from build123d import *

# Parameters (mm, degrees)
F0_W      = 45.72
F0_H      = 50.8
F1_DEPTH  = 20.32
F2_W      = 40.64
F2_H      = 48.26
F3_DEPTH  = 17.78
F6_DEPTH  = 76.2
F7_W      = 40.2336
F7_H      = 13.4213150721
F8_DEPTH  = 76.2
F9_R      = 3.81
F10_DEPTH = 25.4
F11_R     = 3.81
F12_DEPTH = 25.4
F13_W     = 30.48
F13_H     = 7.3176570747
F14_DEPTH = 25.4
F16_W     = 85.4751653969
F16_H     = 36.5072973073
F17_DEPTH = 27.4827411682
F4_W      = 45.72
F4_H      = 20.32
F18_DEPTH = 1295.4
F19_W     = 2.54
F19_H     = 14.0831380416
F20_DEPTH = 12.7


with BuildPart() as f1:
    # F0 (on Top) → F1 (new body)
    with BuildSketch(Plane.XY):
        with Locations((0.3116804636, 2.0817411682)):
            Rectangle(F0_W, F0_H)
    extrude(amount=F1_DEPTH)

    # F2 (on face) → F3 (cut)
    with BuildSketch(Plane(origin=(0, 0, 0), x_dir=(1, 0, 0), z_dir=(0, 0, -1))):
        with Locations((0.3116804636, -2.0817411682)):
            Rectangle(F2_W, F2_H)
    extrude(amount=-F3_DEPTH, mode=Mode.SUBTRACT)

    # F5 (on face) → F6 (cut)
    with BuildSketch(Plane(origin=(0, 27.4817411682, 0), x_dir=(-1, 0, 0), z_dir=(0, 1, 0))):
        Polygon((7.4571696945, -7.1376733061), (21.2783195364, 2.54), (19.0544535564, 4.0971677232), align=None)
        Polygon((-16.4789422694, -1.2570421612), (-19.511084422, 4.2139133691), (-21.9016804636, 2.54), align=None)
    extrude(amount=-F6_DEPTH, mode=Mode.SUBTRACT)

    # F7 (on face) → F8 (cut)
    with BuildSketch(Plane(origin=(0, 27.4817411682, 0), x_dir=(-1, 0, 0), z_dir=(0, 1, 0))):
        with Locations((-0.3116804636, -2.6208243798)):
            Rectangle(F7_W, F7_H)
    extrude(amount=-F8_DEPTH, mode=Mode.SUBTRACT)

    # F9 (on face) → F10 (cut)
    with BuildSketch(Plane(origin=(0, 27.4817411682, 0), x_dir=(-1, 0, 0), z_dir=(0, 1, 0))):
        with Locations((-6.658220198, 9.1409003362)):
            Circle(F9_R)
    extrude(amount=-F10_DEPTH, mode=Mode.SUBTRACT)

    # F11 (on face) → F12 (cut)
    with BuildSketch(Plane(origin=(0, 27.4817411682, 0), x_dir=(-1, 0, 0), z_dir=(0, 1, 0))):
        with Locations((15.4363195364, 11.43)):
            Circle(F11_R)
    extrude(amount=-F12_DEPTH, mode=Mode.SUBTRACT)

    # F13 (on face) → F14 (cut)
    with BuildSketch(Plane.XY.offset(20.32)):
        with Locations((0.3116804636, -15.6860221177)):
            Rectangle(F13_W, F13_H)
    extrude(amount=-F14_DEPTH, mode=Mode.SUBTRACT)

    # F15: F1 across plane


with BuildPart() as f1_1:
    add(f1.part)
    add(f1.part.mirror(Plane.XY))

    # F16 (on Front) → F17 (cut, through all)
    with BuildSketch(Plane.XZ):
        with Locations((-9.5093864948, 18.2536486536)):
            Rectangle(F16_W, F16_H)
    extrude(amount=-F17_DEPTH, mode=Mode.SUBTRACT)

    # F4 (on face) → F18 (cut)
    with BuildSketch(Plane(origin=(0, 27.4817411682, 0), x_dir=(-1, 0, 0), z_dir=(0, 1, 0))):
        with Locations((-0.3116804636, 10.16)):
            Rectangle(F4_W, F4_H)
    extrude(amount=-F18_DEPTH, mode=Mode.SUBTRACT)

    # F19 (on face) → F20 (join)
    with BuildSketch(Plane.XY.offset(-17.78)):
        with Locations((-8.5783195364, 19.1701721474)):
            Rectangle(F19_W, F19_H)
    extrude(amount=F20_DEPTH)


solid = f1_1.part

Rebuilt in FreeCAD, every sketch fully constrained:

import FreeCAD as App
import Part
import Sketcher

V = App.Vector
Q = App.Units.Quantity

doc = App.newDocument("Part")
body = doc.addObject("PartDesign::Body", "Body")

sketch1 = body.newObject("Sketcher::SketchObject", "Sketch")
sketch1.AttachmentSupport = (doc.getObject("XY_Plane"), [""])
sketch1.MapMode = "FlatFace"
sketch1.addGeometry([
    Part.LineSegment(V(-22.54832, 27.481741, 0), V(-22.54832, -23.318259, 0)),
    Part.LineSegment(V(-22.54832, -23.318259, 0), V(23.17168, -23.318259, 0)),
    Part.LineSegment(V(23.17168, -23.318259, 0), V(23.17168, 27.481741, 0)),
    Part.LineSegment(V(23.17168, 27.481741, 0), V(-22.54832, 27.481741, 0)),
], False)
sketch1.addConstraint([
    Sketcher.Constraint("Coincident", 0, 2, 1, 1),
    Sketcher.Constraint("Coincident", 1, 2, 2, 1),
    Sketcher.Constraint("Coincident", 2, 2, 3, 1),
    Sketcher.Constraint("Coincident", 3, 2, 0, 1),
    Sketcher.Constraint("Vertical", 0),
    Sketcher.Constraint("Horizontal", 1),
    Sketcher.Constraint("Vertical", 2),
    Sketcher.Constraint("Horizontal", 3),
    Sketcher.Constraint("DistanceY", 0, 2, 0, 1, Q("2 in")),
    Sketcher.Constraint("DistanceX", 1, 1, 1, 2, Q("1.8 in")),
    Sketcher.Constraint("DistanceX", 0, 2, -1, 1, Q("22.54832 mm")),
    Sketcher.Constraint("DistanceY", 0, 2, -1, 1, Q("23.318259 mm")),
])
pad1 = body.newObject("PartDesign::Pad", "Pad")
pad1.Profile = sketch1
pad1.Length = Q("0.8 in")

sketch2 = body.newObject("Sketcher::SketchObject", "Sketch001")
sketch2.AttachmentSupport = (doc.getObject("XY_Plane"), [""])
sketch2.MapMode = "FlatFace"
sketch2.addGeometry([
    Part.LineSegment(V(-20.00832, -22.048259, 0), V(-20.00832, 26.211741, 0)),
    Part.LineSegment(V(-20.00832, 26.211741, 0), V(20.63168, 26.211741, 0)),
    Part.LineSegment(V(20.63168, 26.211741, 0), V(20.63168, -22.048259, 0)),
    Part.LineSegment(V(20.63168, -22.048259, 0), V(-20.00832, -22.048259, 0)),
], False)
sketch2.addConstraint([
    Sketcher.Constraint("Coincident", 0, 2, 1, 1),
    Sketcher.Constraint("Coincident", 1, 2, 2, 1),
    Sketcher.Constraint("Coincident", 2, 2, 3, 1),
    Sketcher.Constraint("Coincident", 3, 2, 0, 1),
    Sketcher.Constraint("Vertical", 0),
    Sketcher.Constraint("Horizontal", 1),
    Sketcher.Constraint("Vertical", 2),
    Sketcher.Constraint("Horizontal", 3),
    Sketcher.Constraint("DistanceX", 1, 1, 1, 2, Q("1.6 in")),
    Sketcher.Constraint("DistanceY", 0, 1, 0, 2, Q("1.9 in")),
    Sketcher.Constraint("DistanceX", 0, 2, -1, 1, Q("20.00832 mm")),
    Sketcher.Constraint("DistanceY", -1, 1, 0, 2, Q("26.211741 mm")),
])
pocket1 = body.newObject("PartDesign::Pocket", "Pocket")
pocket1.Profile = sketch2
pocket1.Length = Q("0.7 in")
pocket1.Reversed = True

sketch3 = body.newObject("Sketcher::SketchObject", "Sketch002")
sketch3.AttachmentSupport = (doc.getObject("XZ_Plane"), [""])
sketch3.MapMode = "FlatFace"
sketch3.AttachmentOffset = App.Placement(V(0, 0, -27.481741), App.Rotation())
sketch3.addGeometry([
    Part.LineSegment(V(-7.45717, -7.137673, 0), V(-21.27832, 2.54, 0)),
    Part.LineSegment(V(-21.27832, 2.54, 0), V(-19.054454, 4.097168, 0)),
    Part.LineSegment(V(-19.054454, 4.097168, 0), V(-7.45717, -7.137673, 0)),
    Part.LineSegment(V(16.478942, -1.257042, 0), V(19.511084, 4.213913, 0)),
    Part.LineSegment(V(19.511084, 4.213913, 0), V(21.90168, 2.54, 0)),
    Part.LineSegment(V(21.90168, 2.54, 0), V(16.478942, -1.257042, 0)),
], False)
sketch3.addConstraint([
    Sketcher.Constraint("Coincident", 0, 2, 1, 1),
    Sketcher.Constraint("Coincident", 1, 2, 2, 1),
    Sketcher.Constraint("Coincident", 2, 2, 0, 1),
    Sketcher.Constraint("Coincident", 3, 2, 4, 1),
    Sketcher.Constraint("Coincident", 4, 2, 5, 1),
    Sketcher.Constraint("Coincident", 5, 2, 3, 1),
    Sketcher.Constraint("Parallel", 0, 4),
    Sketcher.Constraint("Parallel", 1, 5),
    Sketcher.Constraint("Horizontal", 0, 2, 4, 2),
    Sketcher.Constraint("Angle", 0, Q("145 deg")),
    Sketcher.Constraint("Angle", 1, Q("35 deg")),
    Sketcher.Constraint("DistanceY", -1, 1, 0, 2, Q("0.1 in")),
    Sketcher.Constraint("DistanceX", 0, 2, 4, 2, Q("1.7 in")),
    Sketcher.Constraint("Distance", 2, Q("0.6357002 in")),
    Sketcher.Constraint("Distance", 0, Q("16.872509 mm")),
    Sketcher.Constraint("Distance", 4, Q("2.918379 mm")),
    Sketcher.Constraint("Distance", 5, Q("6.619941 mm")),
    Sketcher.Constraint("DistanceX", 0, 2, -1, 1, Q("21.27832 mm")),
])
pocket2 = body.newObject("PartDesign::Pocket", "Pocket001")
pocket2.Profile = sketch3
pocket2.Length = Q("3 in")
pocket2.Reversed = True

sketch4 = body.newObject("Sketcher::SketchObject", "Sketch003")
sketch4.AttachmentSupport = (doc.getObject("XZ_Plane"), [""])
sketch4.MapMode = "FlatFace"
sketch4.AttachmentOffset = App.Placement(V(0, 0, -27.481741), App.Rotation())
sketch4.addGeometry([
    Part.LineSegment(V(20.42848, 4.089833, 0), V(20.42848, -9.331482, 0)),
    Part.LineSegment(V(20.42848, -9.331482, 0), V(-19.80512, -9.331482, 0)),
    Part.LineSegment(V(-19.80512, -9.331482, 0), V(-19.80512, 4.089833, 0)),
    Part.LineSegment(V(-19.80512, 4.089833, 0), V(20.42848, 4.089833, 0)),
], False)
sketch4.addConstraint([
    Sketcher.Constraint("Coincident", 0, 2, 1, 1),
    Sketcher.Constraint("Coincident", 1, 2, 2, 1),
    Sketcher.Constraint("Coincident", 2, 2, 3, 1),
    Sketcher.Constraint("Coincident", 3, 2, 0, 1),
    Sketcher.Constraint("Vertical", 0),
    Sketcher.Constraint("Horizontal", 1),
    Sketcher.Constraint("Vertical", 2),
    Sketcher.Constraint("Horizontal", 3),
    Sketcher.Constraint("DistanceX", 1, 2, 1, 1, Q("1.584 in")),
    Sketcher.Constraint("DistanceY", 0, 2, 0, 1, Q("13.421315 mm")),
    Sketcher.Constraint("DistanceX", -1, 1, 0, 2, Q("20.42848 mm")),
    Sketcher.Constraint("DistanceY", 0, 2, -1, 1, Q("9.331482 mm")),
])
pocket3 = body.newObject("PartDesign::Pocket", "Pocket002")
pocket3.Profile = sketch4
pocket3.Length = Q("3 in")
pocket3.Reversed = True

sketch5 = body.newObject("Sketcher::SketchObject", "Sketch004")
sketch5.AttachmentSupport = (doc.getObject("XZ_Plane"), [""])
sketch5.MapMode = "FlatFace"
sketch5.AttachmentOffset = App.Placement(V(0, 0, -27.481741), App.Rotation())
sketch5.addGeometry(Part.Circle(V(6.65822, 9.1409, 0), V(0, 0, 1), 3.81), False)
sketch5.addConstraint([
    Sketcher.Constraint("Diameter", 0, Q("0.3 in")),
    Sketcher.Constraint("DistanceY", -1, 1, 0, 3, Q("9.1409 mm")),
    Sketcher.Constraint("DistanceX", -1, 1, 0, 3, Q("6.65822 mm")),
])
pocket4 = body.newObject("PartDesign::Pocket", "Pocket003")
pocket4.Profile = sketch5
pocket4.Length = Q("1 in")
pocket4.Reversed = True

sketch6 = body.newObject("Sketcher::SketchObject", "Sketch005")
sketch6.AttachmentSupport = (doc.getObject("XZ_Plane"), [""])
sketch6.MapMode = "FlatFace"
sketch6.AttachmentOffset = App.Placement(V(0, 0, -27.481741), App.Rotation())
sketch6.addGeometry(Part.Circle(V(-15.43632, 11.43, 0), V(0, 0, 1), 3.81), False)
sketch6.addConstraint([
    Sketcher.Constraint("Diameter", 0, Q("0.3 in")),
    Sketcher.Constraint("DistanceY", -1, 1, 0, 3, Q("0.45 in")),
    Sketcher.Constraint("DistanceX", 0, 3, -1, 1, Q("15.43632 mm")),
])
pocket5 = body.newObject("PartDesign::Pocket", "Pocket004")
pocket5.Profile = sketch6
pocket5.Length = Q("1 in")
pocket5.Reversed = True

sketch7 = body.newObject("Sketcher::SketchObject", "Sketch006")
sketch7.AttachmentSupport = (doc.getObject("XY_Plane"), [""])
sketch7.MapMode = "FlatFace"
sketch7.AttachmentOffset = App.Placement(V(0, 0, 0.8 * 25.4), App.Rotation())
sketch7.addGeometry([
    Part.LineSegment(V(-14.92832, -12.027194, 0), V(-14.92832, -19.344851, 0)),
    Part.LineSegment(V(-14.92832, -19.344851, 0), V(15.55168, -19.344851, 0)),
    Part.LineSegment(V(15.55168, -19.344851, 0), V(15.55168, -12.027194, 0)),
    Part.LineSegment(V(15.55168, -12.027194, 0), V(-14.92832, -12.027194, 0)),
], False)
sketch7.addConstraint([
    Sketcher.Constraint("Coincident", 0, 2, 1, 1),
    Sketcher.Constraint("Coincident", 1, 2, 2, 1),
    Sketcher.Constraint("Coincident", 2, 2, 3, 1),
    Sketcher.Constraint("Coincident", 3, 2, 0, 1),
    Sketcher.Constraint("Vertical", 0),
    Sketcher.Constraint("Horizontal", 1),
    Sketcher.Constraint("Vertical", 2),
    Sketcher.Constraint("Horizontal", 3),
    Sketcher.Constraint("DistanceX", 1, 1, 1, 2, Q("1.2 in")),
    Sketcher.Constraint("DistanceY", 0, 2, 0, 1, Q("7.317657 mm")),
    Sketcher.Constraint("DistanceX", 0, 2, -1, 1, Q("14.92832 mm")),
    Sketcher.Constraint("DistanceY", 0, 2, -1, 1, Q("19.344851 mm")),
])
pocket6 = body.newObject("PartDesign::Pocket", "Pocket005")
pocket6.Profile = sketch7
pocket6.Length = Q("1 in")
body2 = doc.addObject("PartDesign::Body", "Body001")
doc.recompute()

body2.BaseFeature = body
doc.recompute()

mirroring = doc.addObject("Part::Mirroring", "Mirroring")
mirroring.Source = body
mirroring.Base = V(0, 0, 0)
mirroring.Normal = V(0, 0, 1)
body3 = doc.addObject("PartDesign::Body", "Body002")
body3.BaseFeature = mirroring
boolean = body2.newObject("PartDesign::Boolean", "Boolean")
boolean.Type = "Fuse"
boolean.addObjects([body3])
doc.recompute()

sketch8 = body2.newObject("Sketcher::SketchObject", "Sketch007")
sketch8.AttachmentSupport = (doc.getObject("XZ_Plane001"), [""])
sketch8.MapMode = "FlatFace"
sketch8.addGeometry([
    Part.LineSegment(V(-52.246969, 36.507297, 0), V(-52.246969, 0, 0)),
    Part.LineSegment(V(-52.246969, 0, 0), V(33.228196, 0, 0)),
    Part.LineSegment(V(33.228196, 0, 0), V(33.228196, 36.507297, 0)),
    Part.LineSegment(V(33.228196, 36.507297, 0), V(-52.246969, 36.507297, 0)),
], False)
sketch8.addConstraint([
    Sketcher.Constraint("Coincident", 0, 2, 1, 1),
    Sketcher.Constraint("Coincident", 1, 2, 2, 1),
    Sketcher.Constraint("Coincident", 2, 2, 3, 1),
    Sketcher.Constraint("Coincident", 3, 2, 0, 1),
    Sketcher.Constraint("Vertical", 0),
    Sketcher.Constraint("Horizontal", 1),
    Sketcher.Constraint("Vertical", 2),
    Sketcher.Constraint("Horizontal", 3),
    Sketcher.Constraint("PointOnObject", 0, 2, -1),
    Sketcher.Constraint("DistanceX", 1, 1, 1, 2, Q("85.475165 mm")),
    Sketcher.Constraint("DistanceY", 0, 2, 0, 1, Q("36.507297 mm")),
    Sketcher.Constraint("DistanceX", 0, 2, -1, 1, Q("52.246969 mm")),
])
pocket7 = body2.newObject("PartDesign::Pocket", "Pocket006")
pocket7.Profile = sketch8
pocket7.Type = "ThroughAll"

sketch9 = body2.newObject("Sketcher::SketchObject", "Sketch008")
sketch9.AttachmentSupport = (doc.getObject("XZ_Plane001"), [""])
sketch9.MapMode = "FlatFace"
sketch9.AttachmentOffset = App.Placement(V(0, 0, -27.481741), App.Rotation())
sketch9.addGeometry([
    Part.LineSegment(V(23.17168, 20.32, 0), V(23.17168, 0, 0)),
    Part.LineSegment(V(23.17168, 0, 0), V(-22.54832, 0, 0)),
    Part.LineSegment(V(-22.54832, 0, 0), V(-22.54832, 20.32, 0)),
    Part.LineSegment(V(-22.54832, 20.32, 0), V(23.17168, 20.32, 0)),
], False)
sketch9.addConstraint([
    Sketcher.Constraint("Coincident", 0, 2, 1, 1),
    Sketcher.Constraint("Coincident", 1, 2, 2, 1),
    Sketcher.Constraint("Coincident", 2, 2, 3, 1),
    Sketcher.Constraint("Coincident", 3, 2, 0, 1),
    Sketcher.Constraint("Vertical", 0),
    Sketcher.Constraint("Horizontal", 1),
    Sketcher.Constraint("Vertical", 2),
    Sketcher.Constraint("Horizontal", 3),
    Sketcher.Constraint("PointOnObject", 0, 2, -1),
    Sketcher.Constraint("DistanceX", 1, 2, 1, 1, Q("1.8 in")),
    Sketcher.Constraint("DistanceY", 0, 2, 0, 1, Q("0.8 in")),
    Sketcher.Constraint("DistanceX", -1, 1, 0, 2, Q("23.17168 mm")),
])
pocket8 = body2.newObject("PartDesign::Pocket", "Pocket007")
pocket8.Profile = sketch9
pocket8.Length = Q("51 in")
pocket8.Reversed = True

sketch10 = body2.newObject("Sketcher::SketchObject", "Sketch009")
sketch10.AttachmentSupport = (doc.getObject("XY_Plane001"), [""])
sketch10.MapMode = "FlatFace"
sketch10.AttachmentOffset = App.Placement(V(0, 0, -0.7 * 25.4), App.Rotation())
sketch10.addGeometry([
    Part.LineSegment(V(-9.84832, 26.211741, 0), V(-9.84832, 12.128603, 0)),
    Part.LineSegment(V(-9.84832, 12.128603, 0), V(-7.30832, 12.128603, 0)),
    Part.LineSegment(V(-7.30832, 12.128603, 0), V(-7.30832, 26.211741, 0)),
    Part.LineSegment(V(-7.30832, 26.211741, 0), V(-9.84832, 26.211741, 0)),
], False)
sketch10.addConstraint([
    Sketcher.Constraint("Coincident", 0, 2, 1, 1),
    Sketcher.Constraint("Coincident", 1, 2, 2, 1),
    Sketcher.Constraint("Coincident", 2, 2, 3, 1),
    Sketcher.Constraint("Coincident", 3, 2, 0, 1),
    Sketcher.Constraint("Vertical", 0),
    Sketcher.Constraint("Horizontal", 1),
    Sketcher.Constraint("Vertical", 2),
    Sketcher.Constraint("Horizontal", 3),
    Sketcher.Constraint("DistanceX", 1, 1, 1, 2, Q("0.1 in")),
    Sketcher.Constraint("DistanceY", 0, 2, 0, 1, Q("14.083138 mm")),
    Sketcher.Constraint("DistanceX", 0, 2, -1, 1, Q("9.84832 mm")),
    Sketcher.Constraint("DistanceY", -1, 1, 2, 2, Q("26.211741 mm")),
])
pad2 = body2.newObject("PartDesign::Pad", "Pad001")
pad2.Profile = sketch10
pad2.Length = Q("0.5 in")
mirroring.Visibility = False

doc.recompute()
